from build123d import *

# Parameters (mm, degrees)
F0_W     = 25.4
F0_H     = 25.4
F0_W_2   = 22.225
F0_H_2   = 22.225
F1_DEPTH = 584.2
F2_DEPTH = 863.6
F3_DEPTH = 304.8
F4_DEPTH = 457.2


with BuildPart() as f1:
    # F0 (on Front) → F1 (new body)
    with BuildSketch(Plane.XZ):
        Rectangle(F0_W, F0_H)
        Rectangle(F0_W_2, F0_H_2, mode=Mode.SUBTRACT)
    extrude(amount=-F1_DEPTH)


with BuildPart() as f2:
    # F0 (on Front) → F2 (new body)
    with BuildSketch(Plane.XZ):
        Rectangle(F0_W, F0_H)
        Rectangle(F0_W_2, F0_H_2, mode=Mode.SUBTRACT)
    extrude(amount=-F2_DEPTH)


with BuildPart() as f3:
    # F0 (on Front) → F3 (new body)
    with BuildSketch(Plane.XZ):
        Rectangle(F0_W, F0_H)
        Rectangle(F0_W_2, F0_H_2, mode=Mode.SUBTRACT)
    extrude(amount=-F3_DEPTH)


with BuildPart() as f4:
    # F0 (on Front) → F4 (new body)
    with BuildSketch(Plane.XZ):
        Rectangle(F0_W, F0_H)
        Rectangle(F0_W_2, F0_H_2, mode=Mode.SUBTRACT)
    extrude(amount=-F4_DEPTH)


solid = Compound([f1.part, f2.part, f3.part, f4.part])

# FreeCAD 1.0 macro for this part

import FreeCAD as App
import Part
import Sketcher

V = App.Vector
Q = App.Units.Quantity


def add_polygon(sketch, points):
    """Adds a closed chain of lines whose ends are joined by coincident constraints."""
    first, n = sketch.GeometryCount, len(points)
    for a, b in zip(points, points[1:] + points[:1]):
        sketch.addGeometry(Part.LineSegment(App.Vector(*a, 0), App.Vector(*b, 0)), False)
    for i in range(n):
        sketch.addConstraint(Sketcher.Constraint("Coincident", first + i, 2, first + (i + 1) % n, 1))

doc = App.newDocument("Part")
body = doc.addObject("PartDesign::Body", "Body")

sketch1 = body.newObject("Sketcher::SketchObject", "Sketch")
sketch1.AttachmentSupport = (doc.getObject("XZ_Plane"), [""])
sketch1.MapMode = "FlatFace"
add_polygon(sketch1, [(-12.7, 12.7), (-12.7, -12.7), (12.7, -12.7), (12.7, 12.7)])
add_polygon(sketch1, [(11.1125, -11.1125), (-11.1125, -11.1125), (-11.1125, 11.1125), (11.1125, 11.1125)])
sketch1.addConstraint([
    Sketcher.Constraint("Vertical", 0),
    Sketcher.Constraint("Horizontal", 1),
    Sketcher.Constraint("Vertical", 2),
    Sketcher.Constraint("Horizontal", 3),
    Sketcher.Constraint("Horizontal", 4),
    Sketcher.Constraint("Vertical", 5),
    Sketcher.Constraint("Horizontal", 6),
    Sketcher.Constraint("Vertical", 7),
    Sketcher.Constraint("Symmetric", 0, 2, 2, 2, -1, 1),
    Sketcher.Constraint("Symmetric", 4, 2, 6, 2, -1, 1),
    Sketcher.Constraint("Equal", 3, 0),
    Sketcher.Constraint("Equal", 6, 5),
    Sketcher.Constraint("DistanceX", 1, 1, 1, 2, Q("1 in")),
    Sketcher.Constraint("DistanceX", 4, 2, 4, 1, Q("0.875 in")),
])
pad1 = body.newObject("PartDesign::Pad", "Pad")
pad1.Profile = sketch1
pad1.Length = Q("23 in")
pad1.Reversed = True
body2 = doc.addObject("PartDesign::Body", "Body001")

sketch2 = body2.newObject("Sketcher::SketchObject", "Sketch001")
sketch2.AttachmentSupport = (doc.getObject("XZ_Plane001"), [""])
sketch2.MapMode = "FlatFace"
add_polygon(sketch2, [(-12.7, 12.7), (-12.7, -12.7), (12.7, -12.7), (12.7, 12.7)])
add_polygon(sketch2, [(11.1125, -11.1125), (-11.1125, -11.1125), (-11.1125, 11.1125), (11.1125, 11.1125)])
sketch2.addConstraint([
    Sketcher.Constraint("Vertical", 0),
    Sketcher.Constraint("Horizontal", 1),
    Sketcher.Constraint("Vertical", 2),
    Sketcher.Constraint("Horizontal", 3),
    Sketcher.Constraint("Horizontal", 4),
    Sketcher.Constraint("Vertical", 5),
    Sketcher.Constraint("Horizontal", 6),
    Sketcher.Constraint("Vertical", 7),
    Sketcher.Constraint("Symmetric", 0, 2, 2, 2, -1, 1),
    Sketcher.Constraint("Symmetric", 4, 2, 6, 2, -1, 1),
    Sketcher.Constraint("Equal", 3, 0),
    Sketcher.Constraint("Equal", 6, 5),
    Sketcher.Constraint("DistanceX", 1, 1, 1, 2, Q("1 in")),
    Sketcher.Constraint("DistanceX", 4, 2, 4, 1, Q("0.875 in")),
])
pad2 = body2.newObject("PartDesign::Pad", "Pad001")
pad2.Profile = sketch2
pad2.Length = Q("34 in")
pad2.Reversed = True
body3 = doc.addObject("PartDesign::Body", "Body002")

sketch3 = body3.newObject("Sketcher::SketchObject", "Sketch002")
sketch3.AttachmentSupport = (doc.getObject("XZ_Plane002"), [""])
sketch3.MapMode = "FlatFace"
add_polygon(sketch3, [(-12.7, 12.7), (-12.7, -12.7), (12.7, -12.7), (12.7, 12.7)])
add_polygon(sketch3, [(11.1125, -11.1125), (-11.1125, -11.1125), (-11.1125, 11.1125), (11.1125, 11.1125)])
sketch3.addConstraint([
    Sketcher.Constraint("Vertical", 0),
    Sketcher.Constraint("Horizontal", 1),
    Sketcher.Constraint("Vertical", 2),
    Sketcher.Constraint("Horizontal", 3),
    Sketcher.Constraint("Horizontal", 4),
    Sketcher.Constraint("Vertical", 5),
    Sketcher.Constraint("Horizontal", 6),
    Sketcher.Constraint("Vertical", 7),
    Sketcher.Constraint("Symmetric", 0, 2, 2, 2, -1, 1),
    Sketcher.Constraint("Symmetric", 4, 2, 6, 2, -1, 1),
    Sketcher.Constraint("Equal", 3, 0),
    Sketcher.Constraint("Equal", 6, 5),
    Sketcher.Constraint("DistanceX", 1, 1, 1, 2, Q("1 in")),
    Sketcher.Constraint("DistanceX", 4, 2, 4, 1, Q("0.875 in")),
])
pad3 = body3.newObject("PartDesign::Pad", "Pad002")
pad3.Profile = sketch3
pad3.Length = Q("12 in")
pad3.Reversed = True
body4 = doc.addObject("PartDesign::Body", "Body003")

sketch4 = body4.newObject("Sketcher::SketchObject", "Sketch003")
sketch4.AttachmentSupport = (doc.getObject("XZ_Plane003"), [""])
sketch4.MapMode = "FlatFace"
add_polygon(sketch4, [(-12.7, 12.7), (-12.7, -12.7), (12.7, -12.7), (12.7, 12.7)])
add_polygon(sketch4, [(11.1125, -11.1125), (-11.1125, -11.1125), (-11.1125, 11.1125), (11.1125, 11.1125)])
sketch4.addConstraint([
    Sketcher.Constraint("Vertical", 0),
    Sketcher.Constraint("Horizontal", 1),
    Sketcher.Constraint("Vertical", 2),
    Sketcher.Constraint("Horizontal", 3),
    Sketcher.Constraint("Horizontal", 4),
    Sketcher.Constraint("Vertical", 5),
    Sketcher.Constraint("Horizontal", 6),
    Sketcher.Constraint("Vertical", 7),
    Sketcher.Constraint("Symmetric", 0, 2, 2, 2, -1, 1),
    Sketcher.Constraint("Symmetric", 4, 2, 6, 2, -1, 1),
    Sketcher.Constraint("Equal", 3, 0),
    Sketcher.Constraint("Equal", 6, 5),
    Sketcher.Constraint("DistanceX", 1, 1, 1, 2, Q("1 in")),
    Sketcher.Constraint("DistanceX", 4, 2, 4, 1, Q("0.875 in")),
])
pad4 = body4.newObject("PartDesign::Pad", "Pad003")
pad4.Profile = sketch4
pad4.Length = Q("18 in")
pad4.Reversed = True

doc.recompute()
